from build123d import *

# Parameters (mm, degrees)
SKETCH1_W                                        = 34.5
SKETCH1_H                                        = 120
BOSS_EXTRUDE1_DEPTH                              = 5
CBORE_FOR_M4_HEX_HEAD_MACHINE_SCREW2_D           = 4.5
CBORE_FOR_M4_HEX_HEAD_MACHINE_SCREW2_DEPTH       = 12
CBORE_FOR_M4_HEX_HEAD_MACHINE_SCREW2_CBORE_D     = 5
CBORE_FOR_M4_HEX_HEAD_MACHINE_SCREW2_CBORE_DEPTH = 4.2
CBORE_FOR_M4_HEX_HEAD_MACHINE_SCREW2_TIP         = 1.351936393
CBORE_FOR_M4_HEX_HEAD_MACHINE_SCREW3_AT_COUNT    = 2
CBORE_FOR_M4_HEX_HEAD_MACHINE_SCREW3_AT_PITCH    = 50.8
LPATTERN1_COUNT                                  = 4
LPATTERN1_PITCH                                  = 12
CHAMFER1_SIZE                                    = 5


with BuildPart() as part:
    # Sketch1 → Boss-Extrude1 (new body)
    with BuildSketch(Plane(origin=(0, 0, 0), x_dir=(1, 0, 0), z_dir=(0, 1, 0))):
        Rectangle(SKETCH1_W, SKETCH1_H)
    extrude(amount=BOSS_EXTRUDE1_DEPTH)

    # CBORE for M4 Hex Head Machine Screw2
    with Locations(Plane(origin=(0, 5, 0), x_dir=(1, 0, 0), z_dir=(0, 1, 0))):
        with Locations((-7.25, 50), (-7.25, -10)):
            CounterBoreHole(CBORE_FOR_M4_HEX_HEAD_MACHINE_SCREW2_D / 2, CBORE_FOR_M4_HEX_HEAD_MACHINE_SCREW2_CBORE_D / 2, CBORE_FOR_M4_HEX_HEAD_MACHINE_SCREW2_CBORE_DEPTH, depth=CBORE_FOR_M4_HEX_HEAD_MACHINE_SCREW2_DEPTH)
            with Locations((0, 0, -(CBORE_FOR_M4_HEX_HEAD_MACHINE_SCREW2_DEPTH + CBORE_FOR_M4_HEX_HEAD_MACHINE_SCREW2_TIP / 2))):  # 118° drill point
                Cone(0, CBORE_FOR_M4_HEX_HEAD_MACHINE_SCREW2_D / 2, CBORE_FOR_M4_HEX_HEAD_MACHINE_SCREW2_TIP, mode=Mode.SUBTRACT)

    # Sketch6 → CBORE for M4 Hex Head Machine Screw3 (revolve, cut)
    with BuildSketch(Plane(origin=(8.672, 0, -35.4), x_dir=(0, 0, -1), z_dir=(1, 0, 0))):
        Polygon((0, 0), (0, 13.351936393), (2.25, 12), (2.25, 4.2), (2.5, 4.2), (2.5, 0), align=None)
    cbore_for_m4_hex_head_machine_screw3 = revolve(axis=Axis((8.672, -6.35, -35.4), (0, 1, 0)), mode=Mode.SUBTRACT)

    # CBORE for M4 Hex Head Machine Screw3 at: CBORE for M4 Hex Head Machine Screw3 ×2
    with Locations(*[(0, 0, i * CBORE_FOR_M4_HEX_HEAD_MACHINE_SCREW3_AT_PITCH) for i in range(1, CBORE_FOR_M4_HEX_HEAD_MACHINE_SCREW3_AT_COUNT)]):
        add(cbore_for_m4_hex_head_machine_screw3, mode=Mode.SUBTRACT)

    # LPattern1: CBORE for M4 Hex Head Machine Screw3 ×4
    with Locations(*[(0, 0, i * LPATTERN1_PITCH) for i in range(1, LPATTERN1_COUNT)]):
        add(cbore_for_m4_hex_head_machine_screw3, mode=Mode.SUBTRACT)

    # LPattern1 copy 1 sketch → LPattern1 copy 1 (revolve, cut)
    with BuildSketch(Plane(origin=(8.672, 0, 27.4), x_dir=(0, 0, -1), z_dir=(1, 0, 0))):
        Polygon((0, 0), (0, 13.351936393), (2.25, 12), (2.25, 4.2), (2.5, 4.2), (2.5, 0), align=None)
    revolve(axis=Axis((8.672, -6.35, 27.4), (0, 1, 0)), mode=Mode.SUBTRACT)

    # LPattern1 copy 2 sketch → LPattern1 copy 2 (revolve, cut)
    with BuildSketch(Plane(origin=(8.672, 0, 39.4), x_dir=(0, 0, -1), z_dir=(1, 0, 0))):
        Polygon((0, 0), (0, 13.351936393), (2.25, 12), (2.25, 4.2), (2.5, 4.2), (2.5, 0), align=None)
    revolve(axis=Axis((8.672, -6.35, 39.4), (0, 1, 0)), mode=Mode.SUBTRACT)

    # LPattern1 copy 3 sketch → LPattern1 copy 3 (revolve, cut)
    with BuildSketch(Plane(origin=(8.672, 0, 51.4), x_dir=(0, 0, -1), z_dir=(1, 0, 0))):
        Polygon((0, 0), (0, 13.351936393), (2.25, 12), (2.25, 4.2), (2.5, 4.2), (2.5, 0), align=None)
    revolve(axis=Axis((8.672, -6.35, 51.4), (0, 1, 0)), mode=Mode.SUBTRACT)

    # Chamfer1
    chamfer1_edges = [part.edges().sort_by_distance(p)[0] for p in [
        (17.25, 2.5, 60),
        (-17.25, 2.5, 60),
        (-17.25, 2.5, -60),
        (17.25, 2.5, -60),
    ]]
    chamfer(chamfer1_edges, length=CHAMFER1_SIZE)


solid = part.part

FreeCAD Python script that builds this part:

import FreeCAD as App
import Part
import Sketcher
Q = App.Units.Quantity


def edges_at(feature, points):
    """Names of the edges that pass closest to the given points."""
    edges = feature.Shape.Edges
    near = lambda p: min(range(len(edges)), key=lambda i: edges[i].distToShape(Part.Vertex(*p))[0])
    return sorted({f"Edge{near(p) + 1}" for p in points})


def add_polygon(sketch, points):
    """Adds a closed chain of lines whose ends are joined by coincident constraints."""
    first, n = sketch.GeometryCount, len(points)
    for a, b in zip(points, points[1:] + points[:1]):
        sketch.addGeometry(Part.LineSegment(App.Vector(*a, 0), App.Vector(*b, 0)), False)
    for i in range(n):
        sketch.addConstraint(Sketcher.Constraint("Coincident", first + i, 2, first + (i + 1) % n, 1))

doc = App.newDocument("Part")
body = doc.addObject("PartDesign::Body", "Body")

# Sketch on XZ plane
sketch1 = doc.addObject("Sketcher::SketchObject", "Sketch")
body.addObject(sketch1)
sketch1.AttachmentSupport = (doc.XZ_Plane, [""])
sketch1.MapMode = "FlatFace"
add_polygon(sketch1, [(-17.25, -60), (-17.25, 60), (17.25, 60), (17.25, -60)])  # lines 0-3
sketch1.addConstraint([
    Sketcher.Constraint("Vertical", 0),
    Sketcher.Constraint("Horizontal", 1),
    Sketcher.Constraint("Vertical", 2),
    Sketcher.Constraint("Horizontal", 3),
    Sketcher.Constraint("Symmetric", 0, 2, 2, 2, -1, 1),
    Sketcher.Constraint("DistanceY", 0, 1, 0, 2, Q("120 mm")),
    Sketcher.Constraint("DistanceX", 1, 1, 1, 2, Q("34.5 mm")),
])
pad1 = doc.addObject("PartDesign::Pad", "Pad")
body.addObject(pad1)
pad1.Profile = sketch1
pad1.Length = 5
pad1.Reversed = True

# Sketch on XZ plane
sketch2 = doc.addObject("Sketcher::SketchObject", "Sketch001")
body.addObject(sketch2)
sketch2.AttachmentSupport = (doc.XZ_Plane, [""])
sketch2.MapMode = "FlatFace"
sketch2.AttachmentOffset = App.Placement(App.Vector(0, 0, -5), App.Rotation())
sketch2.addGeometry([
    Part.Circle(App.Vector(-7.25, -50, 0), App.Vector(0, 0, 1), 2.25),
    Part.Circle(App.Vector(-7.25, 10, 0), App.Vector(0, 0, 1), 2.25),
], False)
sketch2.addConstraint([
    Sketcher.Constraint("Equal", 0, 1),
    Sketcher.Constraint("Vertical", 0, 3, 1, 3),
    Sketcher.Constraint("Diameter", 0, Q("4.5 mm")),
    Sketcher.Constraint("DistanceY", 0, 3, -1, 1, Q("50 mm")),
    Sketcher.Constraint("DistanceY", -1, 1, 1, 3, Q("10 mm")),
    Sketcher.Constraint("DistanceX", 0, 3, -1, 1, Q("7.25 mm")),
])
doc.recompute()
hole = doc.addObject("PartDesign::Hole", "Hole")
body.addObject(hole)
hole.Profile = sketch2
hole.ThreadType = "None"
hole.Diameter = 4.5
hole.DepthType = "Dimension"
hole.Depth = 12
hole.DrillPoint = "Angled"
hole.DrillPointAngle = 118
hole.HoleCutType = "Counterbore"
hole.HoleCutDiameter = 5
hole.HoleCutDepth = 4.2
hole.Reversed = True

# Sketch on YZ plane
sketch3 = doc.addObject("Sketcher::SketchObject", "Sketch002")
body.addObject(sketch3)
sketch3.AttachmentSupport = (doc.YZ_Plane, [""])
sketch3.MapMode = "FlatFace"
sketch3.AttachmentOffset = App.Placement(App.Vector(0, 0, 8.672), App.Rotation())
add_polygon(sketch3, [(13.351936, -35.4), (0, -35.4), (0, -37.9), (4.2, -37.9), (4.2, -37.65), (12, -37.65)])  # lines 0-5
sketch3.addGeometry(Part.LineSegment(App.Vector(0, -35.4, 0), App.Vector(13.351936, -35.4, 0)), True)  # axis
sketch3.addConstraint([
    Sketcher.Constraint("Horizontal", 0),
    Sketcher.Constraint("Vertical", 1),
    Sketcher.Constraint("Horizontal", 2),
    Sketcher.Constraint("Vertical", 3),
    Sketcher.Constraint("Horizontal", 4),
    Sketcher.Constraint("Horizontal", 6),
    Sketcher.Constraint("Coincident", 6, 1, 0, 2),
    Sketcher.Constraint("PointOnObject", 0, 2, -2),
    Sketcher.Constraint("Equal", 0, 6),
    Sketcher.Constraint("Angle", 5, Q("59 deg")),
    Sketcher.Constraint("DistanceX", 2, 1, 2, 2, Q("4.2 mm")),
    Sketcher.Constraint("DistanceX", 4, 1, 4, 2, Q("7.8 mm")),
    Sketcher.Constraint("DistanceY", 1, 2, 1, 1, Q("2.5 mm")),
    Sketcher.Constraint("DistanceY", 3, 1, 3, 2, Q("0.25 mm")),
    Sketcher.Constraint("DistanceY", 0, 2, -1, 1, Q("35.4 mm")),
])
groove = doc.addObject("PartDesign::Groove", "Groove")
body.addObject(groove)
groove.Profile = sketch3
groove.ReferenceAxis = (sketch3, ["Axis0"])
groove.Angle = 360
doc.recompute()

linearpattern = doc.addObject("PartDesign::LinearPattern", "LinearPattern")
body.addObject(linearpattern)
linearpattern.Originals = [groove]
linearpattern.Direction = (doc.Z_Axis, [""])
linearpattern.Mode = "offset"
linearpattern.Offset = 50.8
linearpattern.Occurrences = 2
body.Tip = linearpattern
doc.recompute()

linearpattern2 = doc.addObject("PartDesign::LinearPattern", "LinearPattern001")
body.addObject(linearpattern2)
linearpattern2.Originals = [groove]
linearpattern2.Direction = (doc.Z_Axis, [""])
linearpattern2.Mode = "offset"
linearpattern2.Offset = 12
linearpattern2.Occurrences = 4
body.Tip = linearpattern2

# Sketch on YZ plane
sketch4 = doc.addObject("Sketcher::SketchObject", "Sketch003")
body.addObject(sketch4)
sketch4.AttachmentSupport = (doc.YZ_Plane, [""])
sketch4.MapMode = "FlatFace"
sketch4.AttachmentOffset = App.Placement(App.Vector(0, 0, 8.672), App.Rotation())
add_polygon(sketch4, [(13.351936, 27.4), (0, 27.4), (0, 24.9), (4.2, 24.9), (4.2, 25.15), (12, 25.15)])  # lines 0-5
sketch4.addGeometry(Part.LineSegment(App.Vector(0, 27.4, 0), App.Vector(13.351936, 27.4, 0)), True)  # axis
sketch4.addConstraint([
    Sketcher.Constraint("Horizontal", 0),
    Sketcher.Constraint("Vertical", 1),
    Sketcher.Constraint("Horizontal", 2),
    Sketcher.Constraint("Vertical", 3),
    Sketcher.Constraint("Horizontal", 4),
    Sketcher.Constraint("Horizontal", 6),
    Sketcher.Constraint("Coincident", 6, 1, 0, 2),
    Sketcher.Constraint("PointOnObject", 0, 2, -2),
    Sketcher.Constraint("Equal", 0, 6),
    Sketcher.Constraint("Angle", 5, Q("59 deg")),
    Sketcher.Constraint("DistanceX", 2, 1, 2, 2, Q("4.2 mm")),
    Sketcher.Constraint("DistanceX", 4, 1, 4, 2, Q("7.8 mm")),
    Sketcher.Constraint("DistanceY", 1, 2, 1, 1, Q("2.5 mm")),
    Sketcher.Constraint("DistanceY", 3, 1, 3, 2, Q("0.25 mm")),
    Sketcher.Constraint("DistanceY", -1, 1, 0, 2, Q("27.4 mm")),
])
groove2 = doc.addObject("PartDesign::Groove", "Groove001")
body.addObject(groove2)
groove2.Profile = sketch4
groove2.ReferenceAxis = (sketch4, ["Axis0"])
groove2.Angle = 360

# Sketch on YZ plane
sketch5 = doc.addObject("Sketcher::SketchObject", "Sketch004")
body.addObject(sketch5)
sketch5.AttachmentSupport = (doc.YZ_Plane, [""])
sketch5.MapMode = "FlatFace"
sketch5.AttachmentOffset = App.Placement(App.Vector(0, 0, 8.672), App.Rotation())
add_polygon(sketch5, [(13.351936, 39.4), (0, 39.4), (0, 36.9), (4.2, 36.9), (4.2, 37.15), (12, 37.15)])  # lines 0-5
sketch5.addGeometry(Part.LineSegment(App.Vector(0, 39.4, 0), App.Vector(13.351936, 39.4, 0)), True)  # axis
sketch5.addConstraint([
    Sketcher.Constraint("Horizontal", 0),
    Sketcher.Constraint("Vertical", 1),
    Sketcher.Constraint("Horizontal", 2),
    Sketcher.Constraint("Vertical", 3),
    Sketcher.Constraint("Horizontal", 4),
    Sketcher.Constraint("Horizontal", 6),
    Sketcher.Constraint("Coincident", 6, 1, 0, 2),
    Sketcher.Constraint("PointOnObject", 0, 2, -2),
    Sketcher.Constraint("Equal", 0, 6),
    Sketcher.Constraint("Angle", 5, Q("59 deg")),
    Sketcher.Constraint("DistanceX", 2, 1, 2, 2, Q("4.2 mm")),
    Sketcher.Constraint("DistanceX", 4, 1, 4, 2, Q("7.8 mm")),
    Sketcher.Constraint("DistanceY", 1, 2, 1, 1, Q("2.5 mm")),
    Sketcher.Constraint("DistanceY", 3, 1, 3, 2, Q("0.25 mm")),
    Sketcher.Constraint("DistanceY", -1, 1, 0, 2, Q("39.4 mm")),
])
groove3 = doc.addObject("PartDesign::Groove", "Groove002")
body.addObject(groove3)
groove3.Profile = sketch5
groove3.ReferenceAxis = (sketch5, ["Axis0"])
groove3.Angle = 360

# Sketch on YZ plane
sketch6 = doc.addObject("Sketcher::SketchObject", "Sketch005")
body.addObject(sketch6)
sketch6.AttachmentSupport = (doc.YZ_Plane, [""])
sketch6.MapMode = "FlatFace"
sketch6.AttachmentOffset = App.Placement(App.Vector(0, 0, 8.672), App.Rotation())
add_polygon(sketch6, [(13.351936, 51.4), (0, 51.4), (0, 48.9), (4.2, 48.9), (4.2, 49.15), (12, 49.15)])  # lines 0-5
sketch6.addGeometry(Part.LineSegment(App.Vector(0, 51.4, 0), App.Vector(13.351936, 51.4, 0)), True)  # axis
sketch6.addConstraint([
    Sketcher.Constraint("Horizontal", 0),
    Sketcher.Constraint("Vertical", 1),
    Sketcher.Constraint("Horizontal", 2),
    Sketcher.Constraint("Vertical", 3),
    Sketcher.Constraint("Horizontal", 4),
    Sketcher.Constraint("Horizontal", 6),
    Sketcher.Constraint("Coincident", 6, 1, 0, 2),
    Sketcher.Constraint("PointOnObject", 0, 2, -2),
    Sketcher.Constraint("Equal", 0, 6),
    Sketcher.Constraint("Angle", 5, Q("59 deg")),
    Sketcher.Constraint("DistanceX", 2, 1, 2, 2, Q("4.2 mm")),
    Sketcher.Constraint("DistanceX", 4, 1, 4, 2, Q("7.8 mm")),
    Sketcher.Constraint("DistanceY", 1, 2, 1, 1, Q("2.5 mm")),
    Sketcher.Constraint("DistanceY", 3, 1, 3, 2, Q("0.25 mm")),
    Sketcher.Constraint("DistanceY", -1, 1, 0, 2, Q("51.4 mm")),
])
groove4 = doc.addObject("PartDesign::Groove", "Groove003")
body.addObject(groove4)
groove4.Profile = sketch6
groove4.ReferenceAxis = (sketch6, ["Axis0"])
groove4.Angle = 360
doc.recompute()

chamfer = doc.addObject("PartDesign::Chamfer", "Chamfer")
body.addObject(chamfer)
chamfer.Base = (groove4, edges_at(groove4, [
    (17.25, 2.5, 60),
    (-17.25, 2.5, 60),
    (-17.25, 2.5, -60),
    (17.25, 2.5, -60),
]))
chamfer.Size = 5

doc.recompute()
